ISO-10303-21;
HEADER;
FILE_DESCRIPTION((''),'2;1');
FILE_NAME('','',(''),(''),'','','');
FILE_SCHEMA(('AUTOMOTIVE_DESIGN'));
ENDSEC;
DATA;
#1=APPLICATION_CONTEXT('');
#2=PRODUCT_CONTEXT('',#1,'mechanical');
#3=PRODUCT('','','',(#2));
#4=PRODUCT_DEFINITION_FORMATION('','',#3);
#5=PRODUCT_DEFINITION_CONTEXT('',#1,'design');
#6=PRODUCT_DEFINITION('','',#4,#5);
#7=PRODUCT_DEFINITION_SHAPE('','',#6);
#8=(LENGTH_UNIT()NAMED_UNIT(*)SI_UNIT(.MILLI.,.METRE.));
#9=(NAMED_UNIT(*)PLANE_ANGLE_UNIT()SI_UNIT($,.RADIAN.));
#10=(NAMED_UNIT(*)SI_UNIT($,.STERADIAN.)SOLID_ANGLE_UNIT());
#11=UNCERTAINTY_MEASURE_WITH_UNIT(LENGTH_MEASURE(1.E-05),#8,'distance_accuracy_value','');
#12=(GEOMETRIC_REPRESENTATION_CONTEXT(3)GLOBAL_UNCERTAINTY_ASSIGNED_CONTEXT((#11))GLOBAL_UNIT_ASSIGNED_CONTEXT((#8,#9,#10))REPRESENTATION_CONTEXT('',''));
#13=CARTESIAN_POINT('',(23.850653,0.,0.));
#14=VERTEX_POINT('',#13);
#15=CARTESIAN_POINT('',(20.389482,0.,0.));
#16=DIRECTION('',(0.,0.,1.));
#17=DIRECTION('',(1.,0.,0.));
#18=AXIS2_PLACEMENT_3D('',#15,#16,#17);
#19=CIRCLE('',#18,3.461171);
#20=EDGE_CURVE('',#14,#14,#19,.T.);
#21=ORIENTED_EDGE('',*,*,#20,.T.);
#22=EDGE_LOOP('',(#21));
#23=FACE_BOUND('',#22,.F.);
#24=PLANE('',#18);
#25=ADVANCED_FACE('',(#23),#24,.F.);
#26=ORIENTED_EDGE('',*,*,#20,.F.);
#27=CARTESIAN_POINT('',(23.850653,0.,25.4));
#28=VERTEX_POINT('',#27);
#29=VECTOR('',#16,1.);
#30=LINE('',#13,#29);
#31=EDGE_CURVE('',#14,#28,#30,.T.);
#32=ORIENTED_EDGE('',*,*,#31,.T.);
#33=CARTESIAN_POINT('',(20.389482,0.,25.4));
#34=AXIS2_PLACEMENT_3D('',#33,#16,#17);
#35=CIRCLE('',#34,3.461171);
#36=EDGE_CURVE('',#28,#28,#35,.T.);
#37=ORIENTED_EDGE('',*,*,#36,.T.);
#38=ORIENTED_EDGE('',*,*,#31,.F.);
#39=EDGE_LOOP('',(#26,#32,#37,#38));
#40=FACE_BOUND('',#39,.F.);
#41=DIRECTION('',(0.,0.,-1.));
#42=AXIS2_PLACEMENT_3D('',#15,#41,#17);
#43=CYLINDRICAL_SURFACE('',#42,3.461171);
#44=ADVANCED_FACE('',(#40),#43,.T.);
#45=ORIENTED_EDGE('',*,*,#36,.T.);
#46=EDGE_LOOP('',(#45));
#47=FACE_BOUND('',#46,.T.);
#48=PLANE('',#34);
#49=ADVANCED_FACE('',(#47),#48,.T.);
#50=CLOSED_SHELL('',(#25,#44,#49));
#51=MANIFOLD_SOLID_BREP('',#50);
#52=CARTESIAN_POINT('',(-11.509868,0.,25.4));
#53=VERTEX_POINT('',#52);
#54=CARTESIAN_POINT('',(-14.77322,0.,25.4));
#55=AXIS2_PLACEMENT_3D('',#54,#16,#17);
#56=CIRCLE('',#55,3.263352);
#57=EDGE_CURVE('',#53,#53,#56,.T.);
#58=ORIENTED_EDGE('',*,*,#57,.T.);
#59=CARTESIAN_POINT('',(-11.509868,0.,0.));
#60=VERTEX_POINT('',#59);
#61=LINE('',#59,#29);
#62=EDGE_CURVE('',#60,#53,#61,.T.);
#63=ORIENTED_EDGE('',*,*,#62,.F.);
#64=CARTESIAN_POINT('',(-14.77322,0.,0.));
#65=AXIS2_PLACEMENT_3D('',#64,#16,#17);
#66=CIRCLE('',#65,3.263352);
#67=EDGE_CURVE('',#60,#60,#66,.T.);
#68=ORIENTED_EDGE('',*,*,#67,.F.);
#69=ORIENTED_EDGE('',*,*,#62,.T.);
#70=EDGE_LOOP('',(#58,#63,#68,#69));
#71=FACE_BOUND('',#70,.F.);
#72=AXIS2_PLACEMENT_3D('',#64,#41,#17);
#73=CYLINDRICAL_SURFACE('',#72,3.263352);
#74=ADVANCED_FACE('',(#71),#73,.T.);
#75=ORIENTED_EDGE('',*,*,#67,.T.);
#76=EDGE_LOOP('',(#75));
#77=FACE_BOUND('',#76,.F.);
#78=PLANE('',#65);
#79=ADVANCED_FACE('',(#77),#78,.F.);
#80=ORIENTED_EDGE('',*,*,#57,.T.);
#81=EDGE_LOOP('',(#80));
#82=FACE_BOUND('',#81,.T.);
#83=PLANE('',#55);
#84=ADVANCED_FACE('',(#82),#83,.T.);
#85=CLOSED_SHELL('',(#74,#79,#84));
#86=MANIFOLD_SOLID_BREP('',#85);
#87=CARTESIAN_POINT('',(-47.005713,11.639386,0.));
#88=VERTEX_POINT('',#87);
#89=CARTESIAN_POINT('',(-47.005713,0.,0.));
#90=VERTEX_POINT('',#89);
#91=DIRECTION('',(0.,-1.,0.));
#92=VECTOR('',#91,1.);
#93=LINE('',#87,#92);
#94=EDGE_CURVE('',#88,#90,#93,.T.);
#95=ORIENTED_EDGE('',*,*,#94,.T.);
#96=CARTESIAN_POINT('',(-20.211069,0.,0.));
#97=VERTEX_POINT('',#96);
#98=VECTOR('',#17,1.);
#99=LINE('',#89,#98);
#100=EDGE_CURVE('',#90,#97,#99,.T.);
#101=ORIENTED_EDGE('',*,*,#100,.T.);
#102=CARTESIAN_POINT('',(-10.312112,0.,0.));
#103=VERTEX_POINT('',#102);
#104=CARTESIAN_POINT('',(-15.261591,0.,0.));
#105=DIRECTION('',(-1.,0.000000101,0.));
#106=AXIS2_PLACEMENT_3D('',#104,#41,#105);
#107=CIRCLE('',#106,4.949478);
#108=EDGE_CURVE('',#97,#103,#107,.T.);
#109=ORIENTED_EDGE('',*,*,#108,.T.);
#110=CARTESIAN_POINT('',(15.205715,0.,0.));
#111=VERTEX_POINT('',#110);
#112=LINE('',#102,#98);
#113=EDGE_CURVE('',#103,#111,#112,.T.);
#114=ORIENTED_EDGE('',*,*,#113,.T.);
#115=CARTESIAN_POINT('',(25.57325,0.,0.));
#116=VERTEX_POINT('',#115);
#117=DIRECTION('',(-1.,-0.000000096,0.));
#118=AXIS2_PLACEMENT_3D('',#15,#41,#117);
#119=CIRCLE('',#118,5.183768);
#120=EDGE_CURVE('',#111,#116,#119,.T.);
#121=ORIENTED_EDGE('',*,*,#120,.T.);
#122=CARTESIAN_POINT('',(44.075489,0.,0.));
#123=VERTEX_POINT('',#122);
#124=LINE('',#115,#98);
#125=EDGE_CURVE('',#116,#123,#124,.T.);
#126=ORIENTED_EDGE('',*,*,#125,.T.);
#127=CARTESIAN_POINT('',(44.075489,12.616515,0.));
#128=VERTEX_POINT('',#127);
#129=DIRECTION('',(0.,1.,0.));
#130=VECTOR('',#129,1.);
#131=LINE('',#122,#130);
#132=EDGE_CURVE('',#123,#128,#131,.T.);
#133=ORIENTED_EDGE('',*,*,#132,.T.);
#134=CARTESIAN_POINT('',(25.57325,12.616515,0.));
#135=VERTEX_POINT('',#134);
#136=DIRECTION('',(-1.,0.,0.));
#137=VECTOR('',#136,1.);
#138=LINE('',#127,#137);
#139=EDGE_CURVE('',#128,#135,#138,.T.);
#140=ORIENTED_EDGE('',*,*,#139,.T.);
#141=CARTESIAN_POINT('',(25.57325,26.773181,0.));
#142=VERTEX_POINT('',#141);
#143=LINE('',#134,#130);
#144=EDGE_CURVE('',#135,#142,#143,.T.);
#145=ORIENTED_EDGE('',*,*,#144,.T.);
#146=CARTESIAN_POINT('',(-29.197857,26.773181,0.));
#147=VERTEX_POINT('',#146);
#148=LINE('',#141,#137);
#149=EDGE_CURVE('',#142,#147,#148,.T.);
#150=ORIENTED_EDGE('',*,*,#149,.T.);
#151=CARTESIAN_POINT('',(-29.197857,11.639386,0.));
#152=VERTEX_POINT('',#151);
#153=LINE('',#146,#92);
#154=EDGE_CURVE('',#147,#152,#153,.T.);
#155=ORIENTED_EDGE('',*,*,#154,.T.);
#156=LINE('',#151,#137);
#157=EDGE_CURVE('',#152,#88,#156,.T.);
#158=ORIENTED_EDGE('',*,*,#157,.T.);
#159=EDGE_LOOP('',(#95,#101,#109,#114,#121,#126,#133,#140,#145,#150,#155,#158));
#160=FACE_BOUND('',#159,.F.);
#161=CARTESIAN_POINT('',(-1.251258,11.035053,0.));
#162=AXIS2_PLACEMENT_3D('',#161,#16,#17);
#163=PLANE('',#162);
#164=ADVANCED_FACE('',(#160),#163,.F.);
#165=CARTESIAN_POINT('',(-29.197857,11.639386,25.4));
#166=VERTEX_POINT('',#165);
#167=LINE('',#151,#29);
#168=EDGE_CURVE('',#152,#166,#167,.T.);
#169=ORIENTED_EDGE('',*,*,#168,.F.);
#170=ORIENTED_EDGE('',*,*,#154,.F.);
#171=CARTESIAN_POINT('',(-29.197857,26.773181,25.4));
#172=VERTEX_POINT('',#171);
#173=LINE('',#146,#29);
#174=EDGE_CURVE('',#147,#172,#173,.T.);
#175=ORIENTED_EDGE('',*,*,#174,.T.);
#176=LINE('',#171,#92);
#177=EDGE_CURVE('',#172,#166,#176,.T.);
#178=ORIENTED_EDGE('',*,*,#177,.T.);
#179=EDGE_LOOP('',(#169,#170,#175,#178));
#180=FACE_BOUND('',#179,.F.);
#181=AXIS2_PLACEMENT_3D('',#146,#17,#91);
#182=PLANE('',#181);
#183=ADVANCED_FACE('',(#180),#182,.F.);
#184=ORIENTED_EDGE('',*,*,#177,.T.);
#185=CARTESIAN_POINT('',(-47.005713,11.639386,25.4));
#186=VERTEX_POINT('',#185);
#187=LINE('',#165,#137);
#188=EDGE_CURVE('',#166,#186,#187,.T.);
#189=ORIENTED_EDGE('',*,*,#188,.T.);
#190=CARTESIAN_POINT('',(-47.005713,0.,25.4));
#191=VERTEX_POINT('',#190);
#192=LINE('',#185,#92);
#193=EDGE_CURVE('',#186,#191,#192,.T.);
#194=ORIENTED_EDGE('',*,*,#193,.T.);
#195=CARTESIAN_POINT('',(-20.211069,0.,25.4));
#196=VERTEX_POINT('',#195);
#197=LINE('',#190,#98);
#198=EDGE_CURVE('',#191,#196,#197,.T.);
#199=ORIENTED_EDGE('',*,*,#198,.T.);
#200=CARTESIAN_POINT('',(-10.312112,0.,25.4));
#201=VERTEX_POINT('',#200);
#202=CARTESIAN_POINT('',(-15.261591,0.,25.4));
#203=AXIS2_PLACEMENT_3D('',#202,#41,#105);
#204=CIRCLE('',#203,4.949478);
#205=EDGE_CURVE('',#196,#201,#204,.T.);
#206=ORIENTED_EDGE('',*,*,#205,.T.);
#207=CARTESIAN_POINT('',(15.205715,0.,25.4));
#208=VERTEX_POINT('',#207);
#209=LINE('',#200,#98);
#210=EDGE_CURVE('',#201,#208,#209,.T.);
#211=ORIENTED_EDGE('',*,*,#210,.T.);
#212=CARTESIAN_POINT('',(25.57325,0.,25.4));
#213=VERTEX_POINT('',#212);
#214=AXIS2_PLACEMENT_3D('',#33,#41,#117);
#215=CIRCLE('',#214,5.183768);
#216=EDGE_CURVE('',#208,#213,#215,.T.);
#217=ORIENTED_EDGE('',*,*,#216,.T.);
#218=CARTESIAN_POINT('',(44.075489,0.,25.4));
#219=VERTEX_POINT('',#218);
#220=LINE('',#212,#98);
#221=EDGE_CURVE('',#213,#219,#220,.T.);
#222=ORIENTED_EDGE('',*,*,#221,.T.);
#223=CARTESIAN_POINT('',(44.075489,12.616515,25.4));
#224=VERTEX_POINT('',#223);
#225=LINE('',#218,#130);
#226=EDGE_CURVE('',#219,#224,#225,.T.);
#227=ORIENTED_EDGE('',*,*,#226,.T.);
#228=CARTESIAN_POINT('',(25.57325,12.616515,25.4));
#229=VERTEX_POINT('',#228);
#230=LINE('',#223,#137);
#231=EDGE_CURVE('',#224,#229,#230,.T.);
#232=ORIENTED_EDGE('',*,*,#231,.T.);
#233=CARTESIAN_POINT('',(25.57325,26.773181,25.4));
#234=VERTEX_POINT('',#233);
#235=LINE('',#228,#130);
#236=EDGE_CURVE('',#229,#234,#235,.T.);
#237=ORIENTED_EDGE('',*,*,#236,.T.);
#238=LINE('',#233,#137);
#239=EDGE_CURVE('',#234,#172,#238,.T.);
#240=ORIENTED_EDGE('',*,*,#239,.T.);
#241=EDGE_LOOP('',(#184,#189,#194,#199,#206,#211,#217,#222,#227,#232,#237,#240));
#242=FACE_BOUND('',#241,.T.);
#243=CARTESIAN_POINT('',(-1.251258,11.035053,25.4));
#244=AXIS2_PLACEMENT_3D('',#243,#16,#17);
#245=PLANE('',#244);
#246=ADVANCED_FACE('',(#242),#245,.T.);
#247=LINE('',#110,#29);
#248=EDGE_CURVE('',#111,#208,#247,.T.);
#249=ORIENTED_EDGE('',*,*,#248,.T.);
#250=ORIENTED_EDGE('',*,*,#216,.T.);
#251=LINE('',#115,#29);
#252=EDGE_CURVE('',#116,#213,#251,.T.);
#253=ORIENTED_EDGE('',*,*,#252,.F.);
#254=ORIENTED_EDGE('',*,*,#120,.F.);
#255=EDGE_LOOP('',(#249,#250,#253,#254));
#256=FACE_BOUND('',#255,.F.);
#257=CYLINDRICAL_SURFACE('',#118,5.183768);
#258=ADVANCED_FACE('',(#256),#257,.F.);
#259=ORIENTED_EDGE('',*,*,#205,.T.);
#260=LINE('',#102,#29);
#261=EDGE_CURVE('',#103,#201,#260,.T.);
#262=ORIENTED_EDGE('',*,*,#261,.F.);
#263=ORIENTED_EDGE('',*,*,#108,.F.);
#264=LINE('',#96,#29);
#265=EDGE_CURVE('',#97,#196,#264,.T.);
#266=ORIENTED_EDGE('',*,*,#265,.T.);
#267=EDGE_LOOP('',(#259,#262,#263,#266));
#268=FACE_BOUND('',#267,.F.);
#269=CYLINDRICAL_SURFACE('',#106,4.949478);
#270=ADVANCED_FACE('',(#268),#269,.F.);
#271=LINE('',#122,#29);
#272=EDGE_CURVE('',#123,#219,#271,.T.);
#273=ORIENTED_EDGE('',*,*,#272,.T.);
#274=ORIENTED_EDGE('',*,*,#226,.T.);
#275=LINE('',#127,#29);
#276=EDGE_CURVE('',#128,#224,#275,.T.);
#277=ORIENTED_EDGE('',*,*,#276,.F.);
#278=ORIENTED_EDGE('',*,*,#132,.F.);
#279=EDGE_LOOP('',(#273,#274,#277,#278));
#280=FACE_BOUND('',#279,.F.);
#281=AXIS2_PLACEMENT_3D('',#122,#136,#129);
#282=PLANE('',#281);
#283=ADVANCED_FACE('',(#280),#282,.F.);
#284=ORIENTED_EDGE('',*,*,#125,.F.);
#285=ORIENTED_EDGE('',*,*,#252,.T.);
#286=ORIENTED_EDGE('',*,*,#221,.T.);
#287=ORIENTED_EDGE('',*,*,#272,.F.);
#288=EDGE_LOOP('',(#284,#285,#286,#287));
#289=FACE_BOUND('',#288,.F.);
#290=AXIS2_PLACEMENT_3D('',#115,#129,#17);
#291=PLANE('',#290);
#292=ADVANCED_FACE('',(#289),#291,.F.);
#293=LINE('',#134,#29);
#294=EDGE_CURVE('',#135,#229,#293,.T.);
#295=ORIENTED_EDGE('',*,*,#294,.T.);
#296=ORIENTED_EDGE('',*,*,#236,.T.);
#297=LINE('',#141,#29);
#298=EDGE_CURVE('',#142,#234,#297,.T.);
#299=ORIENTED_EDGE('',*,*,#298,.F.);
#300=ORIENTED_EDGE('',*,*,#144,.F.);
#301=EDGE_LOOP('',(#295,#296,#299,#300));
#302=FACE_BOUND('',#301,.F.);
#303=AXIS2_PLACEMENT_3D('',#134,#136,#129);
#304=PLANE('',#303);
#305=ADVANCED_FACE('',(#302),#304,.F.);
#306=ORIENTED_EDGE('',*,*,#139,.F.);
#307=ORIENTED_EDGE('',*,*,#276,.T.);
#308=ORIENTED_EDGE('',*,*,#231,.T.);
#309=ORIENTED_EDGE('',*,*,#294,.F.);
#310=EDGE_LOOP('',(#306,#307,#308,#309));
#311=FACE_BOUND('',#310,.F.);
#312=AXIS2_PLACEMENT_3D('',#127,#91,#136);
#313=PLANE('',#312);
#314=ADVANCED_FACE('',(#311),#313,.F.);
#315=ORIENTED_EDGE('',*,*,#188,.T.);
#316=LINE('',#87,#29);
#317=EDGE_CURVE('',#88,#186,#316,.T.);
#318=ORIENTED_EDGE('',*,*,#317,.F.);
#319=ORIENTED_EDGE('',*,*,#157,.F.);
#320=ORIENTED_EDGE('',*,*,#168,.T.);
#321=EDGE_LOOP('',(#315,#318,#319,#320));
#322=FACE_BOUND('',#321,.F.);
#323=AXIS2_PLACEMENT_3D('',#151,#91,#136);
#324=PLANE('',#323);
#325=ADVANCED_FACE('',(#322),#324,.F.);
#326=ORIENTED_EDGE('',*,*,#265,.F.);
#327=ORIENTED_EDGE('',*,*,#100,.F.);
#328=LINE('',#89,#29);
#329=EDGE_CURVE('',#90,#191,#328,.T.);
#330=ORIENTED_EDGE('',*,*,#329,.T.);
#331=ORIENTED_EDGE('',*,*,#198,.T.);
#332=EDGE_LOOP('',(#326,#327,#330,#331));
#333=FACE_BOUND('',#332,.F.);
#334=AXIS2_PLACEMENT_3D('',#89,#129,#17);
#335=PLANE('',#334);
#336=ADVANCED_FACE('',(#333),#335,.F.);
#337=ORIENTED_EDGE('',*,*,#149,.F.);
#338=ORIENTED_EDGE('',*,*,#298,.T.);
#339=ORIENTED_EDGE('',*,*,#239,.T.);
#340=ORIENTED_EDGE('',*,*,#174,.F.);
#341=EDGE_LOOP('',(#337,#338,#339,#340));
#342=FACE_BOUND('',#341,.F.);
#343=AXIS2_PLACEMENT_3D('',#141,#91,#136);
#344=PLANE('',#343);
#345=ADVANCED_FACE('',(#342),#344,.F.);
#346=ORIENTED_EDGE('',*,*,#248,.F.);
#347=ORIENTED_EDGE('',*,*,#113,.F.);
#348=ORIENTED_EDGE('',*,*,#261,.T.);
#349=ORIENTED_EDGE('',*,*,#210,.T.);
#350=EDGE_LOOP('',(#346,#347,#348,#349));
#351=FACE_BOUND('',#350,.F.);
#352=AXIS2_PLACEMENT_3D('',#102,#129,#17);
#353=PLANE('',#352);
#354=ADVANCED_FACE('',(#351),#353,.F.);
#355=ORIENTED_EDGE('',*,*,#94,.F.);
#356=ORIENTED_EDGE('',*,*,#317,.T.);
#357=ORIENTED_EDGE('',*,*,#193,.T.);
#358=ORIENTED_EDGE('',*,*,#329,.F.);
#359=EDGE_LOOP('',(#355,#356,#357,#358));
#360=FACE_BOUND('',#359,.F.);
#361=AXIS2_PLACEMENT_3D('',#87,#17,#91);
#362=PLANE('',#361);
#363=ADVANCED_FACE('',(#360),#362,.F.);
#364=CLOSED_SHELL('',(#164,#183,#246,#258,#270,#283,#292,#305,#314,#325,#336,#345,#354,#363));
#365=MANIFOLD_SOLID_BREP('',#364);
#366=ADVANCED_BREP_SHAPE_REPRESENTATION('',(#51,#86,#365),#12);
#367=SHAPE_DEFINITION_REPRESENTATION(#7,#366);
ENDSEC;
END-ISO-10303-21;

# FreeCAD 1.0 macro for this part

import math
import FreeCAD as App
import Part
import Sketcher
Q = App.Units.Quantity

doc = App.newDocument("Part")
body = doc.addObject("PartDesign::Body", "Body")

# Sketch on XY plane
sketch1 = body.newObject("Sketcher::SketchObject", "Sketch")
sketch1.AttachmentSupport = (doc.getObject("XY_Plane"), [""])
sketch1.MapMode = "FlatFace"
sketch1.addGeometry(Part.LineSegment(App.Vector(25.6, 12.6, 0), App.Vector(25.6, 26.8, 0)), False)
sketch1.addGeometry(Part.LineSegment(App.Vector(25.6, 26.8, 0), App.Vector(-29.2, 26.8, 0)), False)
sketch1.addGeometry(Part.LineSegment(App.Vector(-29.2, 26.8, 0), App.Vector(-29.2, 11.6, 0)), False)
sketch1.addGeometry(Part.LineSegment(App.Vector(-29.2, 11.6, 0), App.Vector(-47, 11.6, 0)), False)
sketch1.addGeometry(Part.LineSegment(App.Vector(-47, 11.6, 0), App.Vector(-47, 0, 0)), False)
sketch1.addGeometry(Part.LineSegment(App.Vector(-47, 0, 0), App.Vector(-20.2, 0, 0)), False)
sketch1.addGeometry(Part.ArcOfCircle(Part.Circle(App.Vector(-15.3, 0, 0), App.Vector(0, 0, 1), 4.9), math.radians(0), math.radians(180)), False)
sketch1.addGeometry(Part.LineSegment(App.Vector(-10.3, 0, 0), App.Vector(15.2, 0, 0)), False)
sketch1.addGeometry(Part.ArcOfCircle(Part.Circle(App.Vector(20.4, 0, 0), App.Vector(0, 0, 1), 5.2), math.radians(0), math.radians(180)), False)
sketch1.addGeometry(Part.LineSegment(App.Vector(25.6, 0, 0), App.Vector(44.1, 0, 0)), False)
sketch1.addGeometry(Part.LineSegment(App.Vector(44.1, 0, 0), App.Vector(44.1, 12.6, 0)), False)
sketch1.addGeometry(Part.LineSegment(App.Vector(44.1, 12.6, 0), App.Vector(25.6, 12.6, 0)), False)
sketch1.addConstraint(Sketcher.Constraint("Coincident", 0, 2, 1, 1))
sketch1.addConstraint(Sketcher.Constraint("Coincident", 1, 2, 2, 1))
sketch1.addConstraint(Sketcher.Constraint("Coincident", 2, 2, 3, 1))
sketch1.addConstraint(Sketcher.Constraint("Coincident", 3, 2, 4, 1))
sketch1.addConstraint(Sketcher.Constraint("Coincident", 4, 2, 5, 1))
sketch1.addConstraint(Sketcher.Constraint("Coincident", 5, 2, 6, 2))
sketch1.addConstraint(Sketcher.Constraint("Coincident", 6, 1, 7, 1))
sketch1.addConstraint(Sketcher.Constraint("Coincident", 7, 2, 8, 2))
sketch1.addConstraint(Sketcher.Constraint("Coincident", 8, 1, 9, 1))
sketch1.addConstraint(Sketcher.Constraint("Coincident", 9, 2, 10, 1))
sketch1.addConstraint(Sketcher.Constraint("Coincident", 10, 2, 11, 1))
sketch1.addConstraint(Sketcher.Constraint("Coincident", 11, 2, 0, 1))
sketch1.addConstraint(Sketcher.Constraint("Vertical", 0))
sketch1.addConstraint(Sketcher.Constraint("Horizontal", 1))
sketch1.addConstraint(Sketcher.Constraint("Vertical", 2))
sketch1.addConstraint(Sketcher.Constraint("Horizontal", 3))
sketch1.addConstraint(Sketcher.Constraint("Vertical", 4))
sketch1.addConstraint(Sketcher.Constraint("Horizontal", 5))
sketch1.addConstraint(Sketcher.Constraint("Horizontal", 7))
sketch1.addConstraint(Sketcher.Constraint("Horizontal", 9))
sketch1.addConstraint(Sketcher.Constraint("Vertical", 10))
sketch1.addConstraint(Sketcher.Constraint("Horizontal", 11))
sketch1.addConstraint(Sketcher.Constraint("PointOnObject", 6, 3, -1))
sketch1.addConstraint(Sketcher.Constraint("PointOnObject", 8, 3, -1))
sketch1.addConstraint(Sketcher.Constraint("PointOnObject", 4, 2, -1))
sketch1.addConstraint(Sketcher.Constraint("PointOnObject", 6, 1, -1))
sketch1.addConstraint(Sketcher.Constraint("PointOnObject", 8, 1, -1))
sketch1.addConstraint(Sketcher.Constraint("Vertical", 0, 2, 8, 1))
sketch1.addConstraint(Sketcher.Constraint("Radius", 6, 4.949478))
sketch1.addConstraint(Sketcher.Constraint("Radius", 8, 5.183768))
sketch1.addConstraint(Sketcher.Constraint("DistanceX", 9, 1, 9, 2, 18.502239))
sketch1.addConstraint(Sketcher.Constraint("DistanceX", 6, 1, 9, 2, 54.387601))
sketch1.addConstraint(Sketcher.Constraint("DistanceX", 1, 2, 1, 1, 54.771107))
sketch1.addConstraint(Sketcher.Constraint("DistanceX", 3, 2, 3, 1, 17.807856))
sketch1.addConstraint(Sketcher.Constraint("DistanceY", 0, 1, 0, 2, 14.156666))
sketch1.addConstraint(Sketcher.Constraint("DistanceY", 2, 2, 2, 1, 15.133795))
sketch1.addConstraint(Sketcher.Constraint("DistanceY", 4, 2, 4, 1, 11.639386))
sketch1.addConstraint(Sketcher.Constraint("DistanceX", 6, 3, -1, 1, 15.261591))
pad1 = body.newObject("PartDesign::Pad", "Pad")
pad1.Profile = sketch1
pad1.Length = Q("1 in")
body2 = doc.addObject("PartDesign::Body", "Body001")
body2.AllowCompound = True

# Sketch on XY plane
sketch2 = body2.newObject("Sketcher::SketchObject", "Sketch001")
sketch2.AttachmentSupport = (doc.getObject("XY_Plane001"), [""])
sketch2.MapMode = "FlatFace"
sketch2.addGeometry(Part.Circle(App.Vector(-14.8, 0, 0), App.Vector(0, 0, 1), 3.3), False)
sketch2.addGeometry(Part.Circle(App.Vector(20.4, 0, 0), App.Vector(0, 0, 1), 3.5), False)
sketch2.addConstraint(Sketcher.Constraint("PointOnObject", 0, 3, -1))
sketch2.addConstraint(Sketcher.Constraint("PointOnObject", 1, 3, -1))
sketch2.addConstraint(Sketcher.Constraint("Diameter", 0, 6.526704))
sketch2.addConstraint(Sketcher.Constraint("Diameter", 1, 6.922342))
sketch2.addConstraint(Sketcher.Constraint("DistanceX", 0, 3, -1, 1, 14.77322))
sketch2.addConstraint(Sketcher.Constraint("DistanceX", -1, 1, 1, 3, 20.389482))
pad2 = body2.newObject("PartDesign::Pad", "Pad001")
pad2.Profile = sketch2
pad2.Length = Q("1 in")

doc.recompute()
